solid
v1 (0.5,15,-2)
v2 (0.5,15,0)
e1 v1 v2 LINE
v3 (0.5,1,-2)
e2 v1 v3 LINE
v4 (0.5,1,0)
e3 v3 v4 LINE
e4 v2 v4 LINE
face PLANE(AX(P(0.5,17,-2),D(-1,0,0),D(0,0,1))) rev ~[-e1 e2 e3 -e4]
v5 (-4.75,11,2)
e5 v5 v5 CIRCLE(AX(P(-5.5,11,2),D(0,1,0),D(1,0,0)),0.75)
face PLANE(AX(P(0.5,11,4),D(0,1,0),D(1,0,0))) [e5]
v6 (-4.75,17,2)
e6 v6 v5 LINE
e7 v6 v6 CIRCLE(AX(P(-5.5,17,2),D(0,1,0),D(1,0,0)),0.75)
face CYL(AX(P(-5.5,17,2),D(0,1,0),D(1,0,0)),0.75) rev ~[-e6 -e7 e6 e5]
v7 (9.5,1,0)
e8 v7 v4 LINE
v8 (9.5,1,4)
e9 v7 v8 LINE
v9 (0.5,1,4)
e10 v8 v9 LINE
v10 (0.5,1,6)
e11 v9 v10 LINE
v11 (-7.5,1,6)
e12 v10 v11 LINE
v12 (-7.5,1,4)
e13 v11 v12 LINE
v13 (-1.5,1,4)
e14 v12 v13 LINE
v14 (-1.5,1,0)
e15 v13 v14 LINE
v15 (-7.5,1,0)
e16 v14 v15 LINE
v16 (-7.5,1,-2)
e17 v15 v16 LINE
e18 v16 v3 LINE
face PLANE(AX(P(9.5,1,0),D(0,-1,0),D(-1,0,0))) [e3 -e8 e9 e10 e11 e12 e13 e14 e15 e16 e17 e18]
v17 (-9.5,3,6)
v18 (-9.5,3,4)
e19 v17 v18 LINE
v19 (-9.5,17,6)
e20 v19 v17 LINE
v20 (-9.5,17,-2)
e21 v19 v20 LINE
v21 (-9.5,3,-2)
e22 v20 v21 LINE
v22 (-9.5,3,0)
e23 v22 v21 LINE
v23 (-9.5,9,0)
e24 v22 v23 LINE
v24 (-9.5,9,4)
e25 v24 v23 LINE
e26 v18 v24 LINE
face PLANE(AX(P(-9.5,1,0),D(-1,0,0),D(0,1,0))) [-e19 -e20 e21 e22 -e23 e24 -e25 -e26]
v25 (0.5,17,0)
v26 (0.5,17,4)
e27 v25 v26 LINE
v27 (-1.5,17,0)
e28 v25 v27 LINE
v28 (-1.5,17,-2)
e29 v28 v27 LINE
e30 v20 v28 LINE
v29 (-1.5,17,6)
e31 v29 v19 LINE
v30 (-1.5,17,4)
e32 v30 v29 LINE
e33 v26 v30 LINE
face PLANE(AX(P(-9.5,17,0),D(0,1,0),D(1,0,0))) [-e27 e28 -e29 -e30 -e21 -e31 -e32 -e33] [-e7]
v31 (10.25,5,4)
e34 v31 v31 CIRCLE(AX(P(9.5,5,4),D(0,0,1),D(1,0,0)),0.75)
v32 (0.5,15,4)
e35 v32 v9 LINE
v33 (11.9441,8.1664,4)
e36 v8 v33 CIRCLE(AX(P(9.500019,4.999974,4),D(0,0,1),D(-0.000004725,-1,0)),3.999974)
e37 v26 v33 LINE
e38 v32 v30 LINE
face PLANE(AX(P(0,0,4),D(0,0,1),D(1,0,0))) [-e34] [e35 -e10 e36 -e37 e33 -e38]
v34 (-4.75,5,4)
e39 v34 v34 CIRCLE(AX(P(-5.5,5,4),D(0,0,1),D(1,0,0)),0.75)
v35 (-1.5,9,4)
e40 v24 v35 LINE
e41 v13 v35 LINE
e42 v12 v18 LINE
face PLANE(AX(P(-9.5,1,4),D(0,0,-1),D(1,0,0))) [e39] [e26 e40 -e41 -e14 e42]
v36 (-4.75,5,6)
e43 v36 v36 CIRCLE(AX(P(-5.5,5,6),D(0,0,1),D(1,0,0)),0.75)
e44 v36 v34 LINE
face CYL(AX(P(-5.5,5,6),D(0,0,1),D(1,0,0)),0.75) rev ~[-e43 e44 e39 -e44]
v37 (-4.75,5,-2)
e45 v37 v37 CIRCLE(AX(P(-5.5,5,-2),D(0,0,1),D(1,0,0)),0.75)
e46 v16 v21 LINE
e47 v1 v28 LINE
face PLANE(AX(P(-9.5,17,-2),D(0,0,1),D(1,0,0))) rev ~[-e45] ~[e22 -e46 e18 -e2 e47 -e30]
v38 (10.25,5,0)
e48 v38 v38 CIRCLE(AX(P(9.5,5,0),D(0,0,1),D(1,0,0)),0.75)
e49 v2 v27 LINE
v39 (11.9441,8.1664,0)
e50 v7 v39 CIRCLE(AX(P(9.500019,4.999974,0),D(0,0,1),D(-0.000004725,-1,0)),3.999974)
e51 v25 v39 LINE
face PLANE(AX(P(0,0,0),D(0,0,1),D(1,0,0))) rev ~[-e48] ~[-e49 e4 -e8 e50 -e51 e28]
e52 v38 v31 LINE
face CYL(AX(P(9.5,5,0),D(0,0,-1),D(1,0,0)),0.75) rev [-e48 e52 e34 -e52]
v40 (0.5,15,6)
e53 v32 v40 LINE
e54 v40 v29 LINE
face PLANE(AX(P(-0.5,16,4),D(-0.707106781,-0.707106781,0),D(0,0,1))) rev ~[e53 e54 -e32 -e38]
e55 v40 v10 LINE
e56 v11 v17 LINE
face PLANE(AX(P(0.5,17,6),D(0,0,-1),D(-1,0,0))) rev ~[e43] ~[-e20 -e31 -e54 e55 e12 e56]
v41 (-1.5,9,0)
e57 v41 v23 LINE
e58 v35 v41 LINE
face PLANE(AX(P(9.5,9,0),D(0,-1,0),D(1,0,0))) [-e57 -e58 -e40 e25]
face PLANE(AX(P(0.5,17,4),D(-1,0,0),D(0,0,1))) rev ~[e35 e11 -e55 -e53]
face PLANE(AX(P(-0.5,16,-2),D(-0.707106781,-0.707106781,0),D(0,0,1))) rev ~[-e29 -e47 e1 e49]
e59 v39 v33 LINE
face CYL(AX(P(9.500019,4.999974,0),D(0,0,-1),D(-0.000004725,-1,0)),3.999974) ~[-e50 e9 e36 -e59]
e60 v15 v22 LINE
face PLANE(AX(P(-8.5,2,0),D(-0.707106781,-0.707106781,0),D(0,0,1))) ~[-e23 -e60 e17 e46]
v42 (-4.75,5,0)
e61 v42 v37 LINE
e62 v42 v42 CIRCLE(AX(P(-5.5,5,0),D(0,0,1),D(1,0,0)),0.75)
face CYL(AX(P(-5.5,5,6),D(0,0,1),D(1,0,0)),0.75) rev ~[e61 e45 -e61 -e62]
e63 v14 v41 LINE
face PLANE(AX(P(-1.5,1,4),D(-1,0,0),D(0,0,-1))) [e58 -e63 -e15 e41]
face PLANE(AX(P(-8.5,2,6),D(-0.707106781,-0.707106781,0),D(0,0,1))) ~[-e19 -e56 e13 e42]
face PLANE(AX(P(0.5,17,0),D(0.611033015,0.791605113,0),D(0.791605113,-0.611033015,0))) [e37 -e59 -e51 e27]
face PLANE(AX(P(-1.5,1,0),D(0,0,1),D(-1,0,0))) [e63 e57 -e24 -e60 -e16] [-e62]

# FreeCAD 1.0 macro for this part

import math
import FreeCAD as App
import Part
import Sketcher

V = App.Vector
Q = App.Units.Quantity


def edges_at(feature, points):
    """Names of the edges that pass closest to the given points."""
    edges = feature.Shape.Edges
    near = lambda p: min(range(len(edges)), key=lambda i: edges[i].distToShape(Part.Vertex(*p))[0])
    return sorted({f"Edge{near(p) + 1}" for p in points})


def add_polygon(sketch, points):
    """Adds a closed chain of lines whose ends are joined by coincident constraints."""
    first, n = sketch.GeometryCount, len(points)
    for a, b in zip(points, points[1:] + points[:1]):
        sketch.addGeometry(Part.LineSegment(App.Vector(*a, 0), App.Vector(*b, 0)), False)
    for i in range(n):
        sketch.addConstraint(Sketcher.Constraint("Coincident", first + i, 2, first + (i + 1) % n, 1))

doc = App.newDocument("Part")
body = doc.addObject("PartDesign::Body", "Body")

sketch1 = body.newObject("Sketcher::SketchObject", "Sketch")
sketch1.AttachmentSupport = (doc.getObject("XY_Plane"), [""])
sketch1.MapMode = "FlatFace"
sketch1.addGeometry([
    Part.LineSegment(V(-9.5, 1, 0), V(9.5, 1, 0)),
    Part.ArcOfCircle(Part.Circle(V(9.5, 5, 0), V(0, 0, 1), 4), math.radians(-90), math.radians(52.33595)),
    Part.LineSegment(V(11.9441, 8.1664, 0), V(0.5, 17, 0)),
    Part.LineSegment(V(0.5, 17, 0), V(-9.5, 17, 0)),
    Part.LineSegment(V(-9.5, 17, 0), V(-9.5, 1, 0)),
    Part.Circle(V(-5.5, 5, 0), V(0, 0, 1), 0.75),
    Part.Circle(V(9.5, 5, 0), V(0, 0, 1), 0.75),
], False)
sketch1.addConstraint([
    Sketcher.Constraint("Tangent", 0, 2, 1, 1),
    Sketcher.Constraint("Tangent", 1, 2, 2, 1),
    Sketcher.Constraint("Coincident", 2, 2, 3, 1),
    Sketcher.Constraint("Coincident", 3, 2, 4, 1),
    Sketcher.Constraint("Coincident", 4, 2, 0, 1),
    Sketcher.Constraint("Horizontal", 0),
    Sketcher.Constraint("Horizontal", 3),
    Sketcher.Constraint("Vertical", 4),
    Sketcher.Constraint("Coincident", 6, 3, 1, 3),
    Sketcher.Constraint("Equal", 5, 6),
    Sketcher.Constraint("Horizontal", 1, 3, 5, 3),
    Sketcher.Constraint("Radius", 1, Q("4 mm")),
    Sketcher.Constraint("Diameter", 5, Q("1.5 mm")),
    Sketcher.Constraint("DistanceX", 0, 1, 0, 2, Q("19 mm")),
    Sketcher.Constraint("DistanceX", 3, 2, 3, 1, Q("10 mm")),
    Sketcher.Constraint("DistanceX", 3, 2, 5, 3, Q("4 mm")),
    Sketcher.Constraint("DistanceY", 4, 2, 4, 1, Q("16 mm")),
    Sketcher.Constraint("DistanceY", -1, 1, 1, 3, Q("5 mm")),
    Sketcher.Constraint("DistanceX", -1, 1, 1, 3, Q("9.5 mm")),
])
pad1 = body.newObject("PartDesign::Pad", "Pad")
pad1.Profile = sketch1
pad1.Length = 4

sketch2 = body.newObject("Sketcher::SketchObject", "Sketch001")
sketch2.AttachmentSupport = (doc.getObject("XZ_Plane"), [""])
sketch2.MapMode = "FlatFace"
sketch2.AttachmentOffset = App.Placement(V(0, 0, -17), App.Rotation())
add_polygon(sketch2, [(-9.5, 0), (0.5, 0), (0.5, -2), (-9.5, -2)])
add_polygon(sketch2, [(0.5, 6), (0.5, 4), (-9.5, 4), (-9.5, 6)])
sketch2.addConstraint([
    Sketcher.Constraint("Horizontal", 0),
    Sketcher.Constraint("Vertical", 1),
    Sketcher.Constraint("Horizontal", 2),
    Sketcher.Constraint("Vertical", 3),
    Sketcher.Constraint("Vertical", 4),
    Sketcher.Constraint("Horizontal", 5),
    Sketcher.Constraint("Vertical", 6),
    Sketcher.Constraint("Horizontal", 7),
    Sketcher.Constraint("PointOnObject", 0, 2, -1),
    Sketcher.Constraint("Vertical", 1, 2, 4, 2),
    Sketcher.Constraint("Vertical", 3, 2, 5, 2),
    Sketcher.Constraint("Equal", 3, 4),
    Sketcher.Constraint("DistanceX", 0, 1, 0, 2, Q("10 mm")),
    Sketcher.Constraint("DistanceY", 1, 2, 1, 1, Q("2 mm")),
    Sketcher.Constraint("DistanceY", 2, 2, 6, 2, Q("8 mm")),
    Sketcher.Constraint("DistanceX", -1, 1, 0, 2, Q("0.5 mm")),
])
pad2 = body.newObject("PartDesign::Pad", "Pad001")
pad2.Profile = sketch2
pad2.Length = 16

sketch3 = body.newObject("Sketcher::SketchObject", "Sketch002")
sketch3.AttachmentSupport = (doc.getObject("XZ_Plane"), [""])
sketch3.MapMode = "FlatFace"
sketch3.AttachmentOffset = App.Placement(V(0, 0, -1), App.Rotation())
add_polygon(sketch3, [(-1.5, 4), (-9.5, 4), (-9.5, 0), (-1.5, 0)])
sketch3.addConstraint([
    Sketcher.Constraint("Horizontal", 0),
    Sketcher.Constraint("Vertical", 1),
    Sketcher.Constraint("Horizontal", 2),
    Sketcher.Constraint("Vertical", 3),
    Sketcher.Constraint("PointOnObject", 1, 2, -1),
    Sketcher.Constraint("DistanceX", 0, 2, 0, 1, Q("8 mm")),
    Sketcher.Constraint("DistanceY", 1, 2, 1, 1, Q("4 mm")),
    Sketcher.Constraint("DistanceX", 0, 2, -1, 1, Q("9.5 mm")),
])
pocket1 = body.newObject("PartDesign::Pocket", "Pocket")
pocket1.Profile = sketch3
pocket1.Length = 8
doc.recompute()

chamfer = body.newObject("PartDesign::Chamfer", "Chamfer")
chamfer.Base = (pocket1, edges_at(pocket1, [
    (-9.5, 1, 5),
    (-9.5, 1, -1),
    (0.5, 17, 5),
    (0.5, 17, -1),
]))
chamfer.Size = 2

sketch4 = body.newObject("Sketcher::SketchObject", "Sketch003")
sketch4.AttachmentSupport = (doc.getObject("XZ_Plane"), [""])
sketch4.MapMode = "FlatFace"
sketch4.AttachmentOffset = App.Placement(V(0, 0, -17), App.Rotation())
sketch4.addGeometry(Part.Circle(V(-5.5, 2, 0), V(0, 0, 1), 0.75), False)
sketch4.addConstraint([
    Sketcher.Constraint("Diameter", 0, Q("1.5 mm")),
    Sketcher.Constraint("DistanceY", -1, 1, 0, 3, Q("2 mm")),
    Sketcher.Constraint("DistanceX", 0, 3, -1, 1, Q("5.5 mm")),
])
pocket2 = body.newObject("PartDesign::Pocket", "Pocket001")
pocket2.Profile = sketch4
pocket2.Length = 6
pocket2.Reversed = True

sketch5 = body.newObject("Sketcher::SketchObject", "Sketch004")
sketch5.AttachmentSupport = (doc.getObject("XY_Plane"), [""])
sketch5.MapMode = "FlatFace"
sketch5.AttachmentOffset = App.Placement(V(0, 0, 6), App.Rotation())
sketch5.addGeometry(Part.Circle(V(-5.5, 5, 0), V(0, 0, 1), 0.75), False)
sketch5.addConstraint([
    Sketcher.Constraint("Diameter", 0, Q("1.5 mm")),
    Sketcher.Constraint("DistanceY", -1, 1, 0, 3, Q("5 mm")),
    Sketcher.Constraint("DistanceX", 0, 3, -1, 1, Q("5.5 mm")),
])
pocket3 = body.newObject("PartDesign::Pocket", "Pocket002")
pocket3.Profile = sketch5
pocket3.Length = 8

doc.recompute()
